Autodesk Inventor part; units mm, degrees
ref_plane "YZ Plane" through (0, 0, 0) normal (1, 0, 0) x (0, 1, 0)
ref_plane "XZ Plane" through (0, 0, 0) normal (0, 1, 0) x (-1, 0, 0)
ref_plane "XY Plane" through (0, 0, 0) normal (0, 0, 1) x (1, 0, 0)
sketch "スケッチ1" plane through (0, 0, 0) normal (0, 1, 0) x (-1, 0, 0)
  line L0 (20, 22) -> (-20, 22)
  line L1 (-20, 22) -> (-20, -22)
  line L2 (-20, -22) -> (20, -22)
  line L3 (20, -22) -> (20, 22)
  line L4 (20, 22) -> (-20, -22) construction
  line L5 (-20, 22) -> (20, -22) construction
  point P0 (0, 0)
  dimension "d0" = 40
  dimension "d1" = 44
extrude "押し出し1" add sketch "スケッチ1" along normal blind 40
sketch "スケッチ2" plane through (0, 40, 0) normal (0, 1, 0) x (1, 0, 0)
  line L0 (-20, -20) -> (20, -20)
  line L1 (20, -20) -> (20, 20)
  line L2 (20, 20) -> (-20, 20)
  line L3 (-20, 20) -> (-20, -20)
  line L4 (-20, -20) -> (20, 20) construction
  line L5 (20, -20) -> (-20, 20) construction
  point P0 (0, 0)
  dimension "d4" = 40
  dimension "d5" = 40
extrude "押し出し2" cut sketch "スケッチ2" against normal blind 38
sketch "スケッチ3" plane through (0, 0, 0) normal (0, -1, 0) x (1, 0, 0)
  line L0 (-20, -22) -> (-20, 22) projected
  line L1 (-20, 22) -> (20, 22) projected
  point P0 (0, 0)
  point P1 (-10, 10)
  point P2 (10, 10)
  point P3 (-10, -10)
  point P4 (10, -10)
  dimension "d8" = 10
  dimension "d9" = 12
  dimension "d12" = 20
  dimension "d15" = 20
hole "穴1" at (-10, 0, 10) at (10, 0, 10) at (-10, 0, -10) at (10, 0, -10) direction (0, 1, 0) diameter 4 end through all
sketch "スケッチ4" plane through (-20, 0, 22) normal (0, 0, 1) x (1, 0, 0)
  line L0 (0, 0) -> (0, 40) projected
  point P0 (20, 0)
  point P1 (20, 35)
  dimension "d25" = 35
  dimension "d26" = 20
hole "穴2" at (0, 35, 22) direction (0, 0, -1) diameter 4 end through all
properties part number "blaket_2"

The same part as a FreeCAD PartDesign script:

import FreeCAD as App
import Part
import Sketcher
from FreeCAD import Vector
Q = App.Units.Quantity

doc = App.newDocument("Part")
body = doc.addObject("PartDesign::Body", "Body")

sketch1 = body.newObject("Sketcher::SketchObject", "Sketch")
sketch1.AttachmentSupport = (doc.getObject("XZ_Plane"), [""])
sketch1.MapMode = "FlatFace"
sketch1.addGeometry(Part.LineSegment(Vector(-20, -22, 0), Vector(-20, 22, 0)), False)
sketch1.addGeometry(Part.LineSegment(Vector(-20, 22, 0), Vector(20, 22, 0)), False)
sketch1.addGeometry(Part.LineSegment(Vector(20, 22, 0), Vector(20, -22, 0)), False)
sketch1.addGeometry(Part.LineSegment(Vector(20, -22, 0), Vector(-20, -22, 0)), False)
sketch1.addConstraint(Sketcher.Constraint("Coincident", 0, 2, 1, 1))
sketch1.addConstraint(Sketcher.Constraint("Coincident", 1, 2, 2, 1))
sketch1.addConstraint(Sketcher.Constraint("Coincident", 2, 2, 3, 1))
sketch1.addConstraint(Sketcher.Constraint("Coincident", 3, 2, 0, 1))
sketch1.addConstraint(Sketcher.Constraint("Vertical", 0))
sketch1.addConstraint(Sketcher.Constraint("Horizontal", 1))
sketch1.addConstraint(Sketcher.Constraint("Vertical", 2))
sketch1.addConstraint(Sketcher.Constraint("Horizontal", 3))
sketch1.addConstraint(Sketcher.Constraint("Symmetric", 0, 2, 2, 2, -1, 1))
sketch1.addConstraint(Sketcher.Constraint("DistanceX", 1, 1, 1, 2, Q("40 mm")))
sketch1.addConstraint(Sketcher.Constraint("DistanceY", 0, 1, 0, 2, Q("44 mm")))
pad1 = body.newObject("PartDesign::Pad", "Pad")
pad1.Profile = sketch1
pad1.Length = 40
pad1.Reversed = True

sketch2 = body.newObject("Sketcher::SketchObject", "Sketch001")
sketch2.AttachmentSupport = (doc.getObject("XZ_Plane"), [""])
sketch2.MapMode = "FlatFace"
sketch2.AttachmentOffset = App.Placement(Vector(0, 0, -40), App.Rotation())
sketch2.addGeometry(Part.LineSegment(Vector(-20, -20, 0), Vector(-20, 20, 0)), False)
sketch2.addGeometry(Part.LineSegment(Vector(-20, 20, 0), Vector(20, 20, 0)), False)
sketch2.addGeometry(Part.LineSegment(Vector(20, 20, 0), Vector(20, -20, 0)), False)
sketch2.addGeometry(Part.LineSegment(Vector(20, -20, 0), Vector(-20, -20, 0)), False)
sketch2.addConstraint(Sketcher.Constraint("Coincident", 0, 2, 1, 1))
sketch2.addConstraint(Sketcher.Constraint("Coincident", 1, 2, 2, 1))
sketch2.addConstraint(Sketcher.Constraint("Coincident", 2, 2, 3, 1))
sketch2.addConstraint(Sketcher.Constraint("Coincident", 3, 2, 0, 1))
sketch2.addConstraint(Sketcher.Constraint("Vertical", 0))
sketch2.addConstraint(Sketcher.Constraint("Horizontal", 1))
sketch2.addConstraint(Sketcher.Constraint("Vertical", 2))
sketch2.addConstraint(Sketcher.Constraint("Horizontal", 3))
sketch2.addConstraint(Sketcher.Constraint("Symmetric", 0, 2, 2, 2, -1, 1))
sketch2.addConstraint(Sketcher.Constraint("Equal", 3, 0))
sketch2.addConstraint(Sketcher.Constraint("DistanceX", 1, 1, 1, 2, Q("40 mm")))
pocket1 = body.newObject("PartDesign::Pocket", "Pocket")
pocket1.Profile = sketch2
pocket1.Length = 38
pocket1.Reversed = True

sketch3 = body.newObject("Sketcher::SketchObject", "Sketch002")
sketch3.AttachmentSupport = (doc.getObject("XZ_Plane"), [""])
sketch3.MapMode = "FlatFace"
sketch3.addGeometry(Part.Circle(Vector(-10, 10, 0), Vector(0, 0, 1), 2), False)
sketch3.addGeometry(Part.Circle(Vector(10, 10, 0), Vector(0, 0, 1), 2), False)
sketch3.addGeometry(Part.Circle(Vector(-10, -10, 0), Vector(0, 0, 1), 2), False)
sketch3.addGeometry(Part.Circle(Vector(10, -10, 0), Vector(0, 0, 1), 2), False)
sketch3.addConstraint(Sketcher.Constraint("Equal", 0, 1))
sketch3.addConstraint(Sketcher.Constraint("Equal", 1, 2))
sketch3.addConstraint(Sketcher.Constraint("Equal", 2, 3))
sketch3.addConstraint(Sketcher.Constraint("Symmetric", 1, 3, 2, 3, -1, 1))
sketch3.addConstraint(Sketcher.Constraint("Symmetric", 0, 3, 3, 3, -1, 1))
sketch3.addConstraint(Sketcher.Constraint("Symmetric", 0, 3, 1, 3, -2))
sketch3.addConstraint(Sketcher.Constraint("Diameter", 0, Q("4 mm")))
sketch3.addConstraint(Sketcher.Constraint("DistanceX", 0, 3, -1, 1, Q("10 mm")))
sketch3.addConstraint(Sketcher.Constraint("DistanceY", -1, 1, 0, 3, Q("10 mm")))
doc.recompute()
hole = body.newObject("PartDesign::Hole", "Hole")
hole.Profile = sketch3
hole.ThreadType = "None"
hole.Diameter = 4
hole.DepthType = "ThroughAll"

sketch4 = body.newObject("Sketcher::SketchObject", "Sketch003")
sketch4.AttachmentSupport = (doc.getObject("XY_Plane"), [""])
sketch4.MapMode = "FlatFace"
sketch4.AttachmentOffset = App.Placement(Vector(0, 0, 22), App.Rotation())
sketch4.addGeometry(Part.Circle(Vector(0, 35, 0), Vector(0, 0, 1), 2), False)
sketch4.addConstraint(Sketcher.Constraint("PointOnObject", 0, 3, -2))
sketch4.addConstraint(Sketcher.Constraint("Diameter", 0, Q("4 mm")))
sketch4.addConstraint(Sketcher.Constraint("DistanceY", -1, 1, 0, 3, Q("35 mm")))
doc.recompute()
hole2 = body.newObject("PartDesign::Hole", "Hole001")
hole2.Profile = sketch4
hole2.ThreadType = "None"
hole2.Diameter = 4
hole2.DepthType = "ThroughAll"

doc.recompute()
